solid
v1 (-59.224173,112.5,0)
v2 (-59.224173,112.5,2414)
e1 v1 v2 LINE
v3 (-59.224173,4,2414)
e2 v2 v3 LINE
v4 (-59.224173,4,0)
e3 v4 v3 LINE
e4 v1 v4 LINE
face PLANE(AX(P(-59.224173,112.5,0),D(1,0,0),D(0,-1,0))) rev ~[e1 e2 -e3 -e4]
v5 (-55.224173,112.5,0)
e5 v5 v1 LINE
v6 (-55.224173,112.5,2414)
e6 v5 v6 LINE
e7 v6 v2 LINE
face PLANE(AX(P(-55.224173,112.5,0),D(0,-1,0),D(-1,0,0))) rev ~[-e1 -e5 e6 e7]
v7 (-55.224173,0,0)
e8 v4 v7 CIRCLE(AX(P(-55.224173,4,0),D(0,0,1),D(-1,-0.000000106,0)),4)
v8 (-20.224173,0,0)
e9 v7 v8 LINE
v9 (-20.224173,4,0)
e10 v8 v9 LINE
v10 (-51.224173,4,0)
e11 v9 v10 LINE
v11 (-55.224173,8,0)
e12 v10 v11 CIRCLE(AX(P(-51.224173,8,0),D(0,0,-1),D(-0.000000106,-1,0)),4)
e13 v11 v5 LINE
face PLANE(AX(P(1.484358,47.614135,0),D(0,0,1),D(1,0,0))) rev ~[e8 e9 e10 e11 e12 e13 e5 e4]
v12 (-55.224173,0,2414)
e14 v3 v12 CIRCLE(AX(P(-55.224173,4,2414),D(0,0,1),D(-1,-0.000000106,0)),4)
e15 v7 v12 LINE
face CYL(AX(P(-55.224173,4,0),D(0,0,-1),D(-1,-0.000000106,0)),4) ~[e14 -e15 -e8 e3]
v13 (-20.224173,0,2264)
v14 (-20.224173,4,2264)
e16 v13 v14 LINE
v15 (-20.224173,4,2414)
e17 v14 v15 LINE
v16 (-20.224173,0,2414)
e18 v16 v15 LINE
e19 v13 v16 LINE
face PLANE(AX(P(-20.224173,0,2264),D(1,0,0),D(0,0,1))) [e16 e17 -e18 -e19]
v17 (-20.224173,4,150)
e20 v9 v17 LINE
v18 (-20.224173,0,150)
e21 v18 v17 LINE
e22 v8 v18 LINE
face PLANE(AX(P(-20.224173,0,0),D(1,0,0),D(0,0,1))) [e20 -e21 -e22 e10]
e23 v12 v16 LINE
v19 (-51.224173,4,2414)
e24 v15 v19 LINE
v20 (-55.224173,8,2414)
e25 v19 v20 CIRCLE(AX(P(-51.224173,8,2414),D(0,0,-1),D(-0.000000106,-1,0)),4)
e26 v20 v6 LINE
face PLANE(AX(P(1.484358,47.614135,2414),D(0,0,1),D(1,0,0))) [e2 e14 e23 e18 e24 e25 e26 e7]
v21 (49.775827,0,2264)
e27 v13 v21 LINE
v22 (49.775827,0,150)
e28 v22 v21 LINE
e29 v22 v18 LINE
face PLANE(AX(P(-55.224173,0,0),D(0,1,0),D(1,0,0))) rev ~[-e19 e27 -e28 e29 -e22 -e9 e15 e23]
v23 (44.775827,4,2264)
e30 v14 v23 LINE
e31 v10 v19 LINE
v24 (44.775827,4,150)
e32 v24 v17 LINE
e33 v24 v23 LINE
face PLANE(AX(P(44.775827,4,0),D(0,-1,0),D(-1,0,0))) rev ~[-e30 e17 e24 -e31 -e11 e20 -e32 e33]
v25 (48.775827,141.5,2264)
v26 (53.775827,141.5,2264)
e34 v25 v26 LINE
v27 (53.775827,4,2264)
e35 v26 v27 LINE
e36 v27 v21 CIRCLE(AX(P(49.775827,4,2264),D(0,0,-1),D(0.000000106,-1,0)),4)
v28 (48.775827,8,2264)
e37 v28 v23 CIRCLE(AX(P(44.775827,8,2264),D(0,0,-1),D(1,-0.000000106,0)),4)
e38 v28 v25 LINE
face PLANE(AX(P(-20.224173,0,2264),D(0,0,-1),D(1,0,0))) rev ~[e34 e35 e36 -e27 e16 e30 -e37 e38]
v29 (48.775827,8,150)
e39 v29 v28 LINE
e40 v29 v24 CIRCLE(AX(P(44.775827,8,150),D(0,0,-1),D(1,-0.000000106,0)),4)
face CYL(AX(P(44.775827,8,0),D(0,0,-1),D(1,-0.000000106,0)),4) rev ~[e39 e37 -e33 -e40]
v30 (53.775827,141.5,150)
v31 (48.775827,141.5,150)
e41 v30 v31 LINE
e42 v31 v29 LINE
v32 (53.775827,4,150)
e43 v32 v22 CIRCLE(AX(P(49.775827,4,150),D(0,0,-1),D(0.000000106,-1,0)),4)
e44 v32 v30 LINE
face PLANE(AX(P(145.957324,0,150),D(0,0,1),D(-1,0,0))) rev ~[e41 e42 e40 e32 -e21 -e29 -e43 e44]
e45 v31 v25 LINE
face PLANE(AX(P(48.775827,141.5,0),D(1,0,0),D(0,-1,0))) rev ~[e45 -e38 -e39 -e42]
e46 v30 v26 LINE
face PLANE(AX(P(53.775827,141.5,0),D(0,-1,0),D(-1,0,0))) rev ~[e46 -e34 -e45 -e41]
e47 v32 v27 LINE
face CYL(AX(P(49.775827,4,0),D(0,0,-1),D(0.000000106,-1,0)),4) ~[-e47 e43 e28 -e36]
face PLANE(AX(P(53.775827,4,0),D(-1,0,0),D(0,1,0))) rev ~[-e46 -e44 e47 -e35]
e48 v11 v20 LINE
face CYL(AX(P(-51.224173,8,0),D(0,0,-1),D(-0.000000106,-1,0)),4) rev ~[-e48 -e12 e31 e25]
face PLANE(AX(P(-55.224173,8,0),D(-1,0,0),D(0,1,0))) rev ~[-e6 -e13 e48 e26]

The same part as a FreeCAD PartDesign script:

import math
import FreeCAD as App
import Part
import Sketcher

V = App.Vector
Q = App.Units.Quantity

doc = App.newDocument("Part")
body = doc.addObject("PartDesign::Body", "Body")

# Sketch on XY plane
sketch1 = body.newObject("Sketcher::SketchObject", "Sketch")
sketch1.AttachmentSupport = (doc.getObject("XY_Plane"), [""])
sketch1.MapMode = "FlatFace"
sketch1.addGeometry([
    Part.LineSegment(V(-55.2, 112.5, 0), V(-59.2, 112.5, 0)),  # 0
    Part.LineSegment(V(-59.2, 112.5, 0), V(-59.2, 4, 0)),  # 1
    Part.ArcOfCircle(Part.Circle(V(-55.2, 4, 0), V(0, 0, 1), 4), math.radians(-180), math.radians(-90)),  # 2
    Part.LineSegment(V(-55.2, 0, 0), V(49.8, 0, 0)),  # 3
    Part.ArcOfCircle(Part.Circle(V(49.8, 4, 0), V(0, 0, 1), 4), math.radians(-90), math.radians(0)),  # 4
    Part.LineSegment(V(53.8, 4, 0), V(53.8, 141.5, 0)),  # 5
    Part.LineSegment(V(53.8, 141.5, 0), V(48.8, 141.5, 0)),  # 6
    Part.LineSegment(V(48.8, 141.5, 0), V(48.8, 8, 0)),  # 7
    Part.ArcOfCircle(Part.Circle(V(44.8, 8, 0), V(0, 0, 1), 4), math.radians(-90), math.radians(0)),  # 8
    Part.LineSegment(V(44.8, 4, 0), V(-51.2, 4, 0)),  # 9
    Part.ArcOfCircle(Part.Circle(V(-51.2, 8, 0), V(0, 0, 1), 4), math.radians(-180), math.radians(-90)),  # 10
    Part.LineSegment(V(-55.2, 8, 0), V(-55.2, 112.5, 0)),  # 11
], False)
sketch1.addConstraint([
    Sketcher.Constraint("Coincident", 0, 2, 1, 1),
    Sketcher.Constraint("Tangent", 1, 2, 2, 1),
    Sketcher.Constraint("Tangent", 2, 2, 3, 1),
    Sketcher.Constraint("Tangent", 3, 2, 4, 1),
    Sketcher.Constraint("Tangent", 4, 2, 5, 1),
    Sketcher.Constraint("Coincident", 5, 2, 6, 1),
    Sketcher.Constraint("Coincident", 6, 2, 7, 1),
    Sketcher.Constraint("Tangent", 7, 2, 8, 2),
    Sketcher.Constraint("Tangent", 8, 1, 9, 1),
    Sketcher.Constraint("Tangent", 9, 2, 10, 2),
    Sketcher.Constraint("Tangent", 10, 1, 11, 1),
    Sketcher.Constraint("Coincident", 11, 2, 0, 1),
    Sketcher.Constraint("Horizontal", 0),
    Sketcher.Constraint("Vertical", 1),
    Sketcher.Constraint("Horizontal", 3),
    Sketcher.Constraint("Vertical", 5),
    Sketcher.Constraint("Horizontal", 6),
    Sketcher.Constraint("Vertical", 7),
    Sketcher.Constraint("Horizontal", 9),
    Sketcher.Constraint("Vertical", 11),
    Sketcher.Constraint("Equal", 2, 4),
    Sketcher.Constraint("Equal", 4, 8),
    Sketcher.Constraint("Equal", 8, 10),
    Sketcher.Constraint("PointOnObject", 2, 2, -1),
    Sketcher.Constraint("Horizontal", 4, 2, 8, 1),
    Sketcher.Constraint("Vertical", 2, 2, 10, 1),
    Sketcher.Constraint("Radius", 2, Q("4 mm")),
    Sketcher.Constraint("DistanceX", 3, 1, 3, 2, Q("105 mm")),
    Sketcher.Constraint("DistanceX", 6, 2, 6, 1, Q("5 mm")),
    Sketcher.Constraint("DistanceY", 1, 2, 1, 1, Q("108.5 mm")),
    Sketcher.Constraint("DistanceY", 5, 1, 5, 2, Q("137.5 mm")),
    Sketcher.Constraint("DistanceX", 2, 3, -1, 1, Q("55.224173 mm")),
])
pad1 = body.newObject("PartDesign::Pad", "Pad")
pad1.Profile = sketch1
pad1.Length = 2414

# Sketch on XZ plane
sketch2 = body.newObject("Sketcher::SketchObject", "Sketch001")
sketch2.AttachmentSupport = (doc.getObject("XZ_Plane"), [""])
sketch2.MapMode = "FlatFace"
sketch2.addGeometry([
    Part.LineSegment(V(-20, 2414, 0), V(-20, 2264, 0)),  # 0
    Part.LineSegment(V(-20, 2264, 0), V(146, 2264, 0)),  # 1
    Part.LineSegment(V(146, 2264, 0), V(146, 2414, 0)),  # 2
    Part.LineSegment(V(146, 2414, 0), V(-20, 2414, 0)),  # 3
    Part.LineSegment(V(146, 0, 0), V(146, 150, 0)),  # 4
    Part.LineSegment(V(146, 150, 0), V(-20, 150, 0)),  # 5
    Part.LineSegment(V(-20, 150, 0), V(-20, 0, 0)),  # 6
    Part.LineSegment(V(-20, 0, 0), V(146, 0, 0)),  # 7
], False)
sketch2.addConstraint([
    Sketcher.Constraint("Coincident", 0, 2, 1, 1),
    Sketcher.Constraint("Coincident", 1, 2, 2, 1),
    Sketcher.Constraint("Coincident", 2, 2, 3, 1),
    Sketcher.Constraint("Coincident", 3, 2, 0, 1),
    Sketcher.Constraint("Coincident", 4, 2, 5, 1),
    Sketcher.Constraint("Coincident", 5, 2, 6, 1),
    Sketcher.Constraint("Coincident", 6, 2, 7, 1),
    Sketcher.Constraint("Coincident", 7, 2, 4, 1),
    Sketcher.Constraint("Vertical", 0),
    Sketcher.Constraint("Horizontal", 1),
    Sketcher.Constraint("Vertical", 2),
    Sketcher.Constraint("Horizontal", 3),
    Sketcher.Constraint("Vertical", 4),
    Sketcher.Constraint("Horizontal", 5),
    Sketcher.Constraint("Vertical", 6),
    Sketcher.Constraint("Horizontal", 7),
    Sketcher.Constraint("PointOnObject", 6, 2, -1),
    Sketcher.Constraint("Vertical", 2, 2, 4, 2),
    Sketcher.Constraint("Vertical", 3, 2, 5, 2),
    Sketcher.Constraint("Equal", 2, 4),
    Sketcher.Constraint("DistanceY", 0, 2, 0, 1, Q("150 mm")),
    Sketcher.Constraint("DistanceY", -1, 1, 0, 2, Q("2264 mm")),
    Sketcher.Constraint("DistanceX", 1, 1, 1, 2, Q("166.181497 mm")),
    Sketcher.Constraint("DistanceX", 0, 2, -1, 1, Q("20.224173 mm")),
])
pocket1 = body.newObject("PartDesign::Pocket", "Pocket")
pocket1.Profile = sketch2
pocket1.Type = "ThroughAll"

doc.recompute()
